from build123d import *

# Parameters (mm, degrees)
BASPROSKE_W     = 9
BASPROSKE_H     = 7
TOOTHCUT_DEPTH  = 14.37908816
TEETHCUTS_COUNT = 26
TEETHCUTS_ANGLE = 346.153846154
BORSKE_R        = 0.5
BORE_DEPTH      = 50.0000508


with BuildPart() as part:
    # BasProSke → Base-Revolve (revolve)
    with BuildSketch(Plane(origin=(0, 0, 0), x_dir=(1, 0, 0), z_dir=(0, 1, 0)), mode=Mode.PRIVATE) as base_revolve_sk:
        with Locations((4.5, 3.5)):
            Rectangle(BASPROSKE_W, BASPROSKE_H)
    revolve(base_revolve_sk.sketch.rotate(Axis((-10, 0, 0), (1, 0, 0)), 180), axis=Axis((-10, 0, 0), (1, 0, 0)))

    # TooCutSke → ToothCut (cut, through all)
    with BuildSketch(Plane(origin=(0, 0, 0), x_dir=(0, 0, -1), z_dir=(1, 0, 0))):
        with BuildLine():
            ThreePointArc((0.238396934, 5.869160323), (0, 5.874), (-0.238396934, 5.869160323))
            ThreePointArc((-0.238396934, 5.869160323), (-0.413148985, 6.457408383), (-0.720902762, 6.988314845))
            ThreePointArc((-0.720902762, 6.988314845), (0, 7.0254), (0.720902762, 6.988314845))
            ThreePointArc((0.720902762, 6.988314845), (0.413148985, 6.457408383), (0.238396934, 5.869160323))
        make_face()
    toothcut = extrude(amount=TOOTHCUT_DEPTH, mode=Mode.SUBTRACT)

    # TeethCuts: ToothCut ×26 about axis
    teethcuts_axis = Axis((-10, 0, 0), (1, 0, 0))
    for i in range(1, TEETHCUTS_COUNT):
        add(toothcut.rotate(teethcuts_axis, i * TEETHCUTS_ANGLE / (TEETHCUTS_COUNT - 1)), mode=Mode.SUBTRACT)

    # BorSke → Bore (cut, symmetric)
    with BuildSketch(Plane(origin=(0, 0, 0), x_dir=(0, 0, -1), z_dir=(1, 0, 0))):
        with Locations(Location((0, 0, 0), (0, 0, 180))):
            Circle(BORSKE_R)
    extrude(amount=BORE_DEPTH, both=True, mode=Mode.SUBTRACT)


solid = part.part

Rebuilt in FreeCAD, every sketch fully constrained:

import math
import FreeCAD as App
import Part
import Sketcher
from FreeCAD import Vector


def add_polygon(sketch, points):
    """Adds a closed chain of lines whose ends are joined by coincident constraints."""
    first, n = sketch.GeometryCount, len(points)
    for a, b in zip(points, points[1:] + points[:1]):
        sketch.addGeometry(Part.LineSegment(App.Vector(*a, 0), App.Vector(*b, 0)), False)
    for i in range(n):
        sketch.addConstraint(Sketcher.Constraint("Coincident", first + i, 2, first + (i + 1) % n, 1))

doc = App.newDocument("Part")
body = doc.addObject("PartDesign::Body", "Body")

# Sketch on XZ plane
sketch1 = doc.addObject("Sketcher::SketchObject", "Sketch")
body.addObject(sketch1)
sketch1.AttachmentSupport = (doc.XZ_Plane, [""])
sketch1.MapMode = "FlatFace"
add_polygon(sketch1, [(0, -7), (0, 0), (9, 0), (9, -7)])  # lines 0-3
sketch1.addConstraint([
    Sketcher.Constraint("Vertical", 0),
    Sketcher.Constraint("Horizontal", 1),
    Sketcher.Constraint("Vertical", 2),
    Sketcher.Constraint("Horizontal", 3),
    Sketcher.Constraint("Coincident", 0, 2, -1, 1),
    Sketcher.Constraint("DistanceX", 1, 1, 1, 2, 9.0),
    Sketcher.Constraint("DistanceY", 0, 1, 0, 2, 7.0),
])
revolution = doc.addObject("PartDesign::Revolution", "Revolution")
body.addObject(revolution)
revolution.Profile = sketch1
revolution.ReferenceAxis = (sketch1, ["H_Axis"])
revolution.Angle = 360

# Sketch on YZ plane
sketch2 = doc.addObject("Sketcher::SketchObject", "Sketch001")
body.addObject(sketch2)
sketch2.AttachmentSupport = (doc.YZ_Plane, [""])
sketch2.MapMode = "FlatFace"
sketch2.addGeometry([
    Part.ArcOfCircle(Part.Circle(Vector(0, 0, 0), Vector(0, 0, 1), 5.874), math.radians(-2.325995), math.radians(2.325995)),
    Part.ArcOfCircle(Part.Circle(Vector(5.428051, -2.800705, 0), Vector(0, 0, 1), 2.6), math.radians(53.122841), math.radians(80.232103)),
    Part.ArcOfCircle(Part.Circle(Vector(0, 0, 0), Vector(0, 0, 1), 7.0254), math.radians(-5.889703), math.radians(5.889703)),
    Part.ArcOfCircle(Part.Circle(Vector(5.428051, 2.800705, 0), Vector(0, 0, 1), 2.6), math.radians(-80.232103), math.radians(-53.122841)),
], False)
sketch2.addConstraint([
    Sketcher.Constraint("Coincident", 0, 1, 1, 2),
    Sketcher.Constraint("Coincident", 1, 1, 2, 1),
    Sketcher.Constraint("Coincident", 2, 2, 3, 2),
    Sketcher.Constraint("Coincident", 3, 1, 0, 2),
    Sketcher.Constraint("Coincident", 0, 3, -1, 1),
    Sketcher.Constraint("Coincident", 2, 3, -1, 1),
    Sketcher.Constraint("Equal", 1, 3),
    Sketcher.Constraint("Symmetric", 1, 3, 3, 3, -1),
    Sketcher.Constraint("Radius", 1, 2.6),
    Sketcher.Constraint("Radius", 0, 5.874),
    Sketcher.Constraint("Radius", 2, 7.0254),
    Sketcher.Constraint("DistanceY", 0, 1, 3, 3, 3.039102),
    Sketcher.Constraint("DistanceY", 0, 1, 2, 2, 0.9593),
])
pocket1 = doc.addObject("PartDesign::Pocket", "Pocket")
body.addObject(pocket1)
pocket1.Profile = sketch2
pocket1.Type = "ThroughAll"
pocket1.Reversed = True
doc.recompute()

polarpattern = doc.addObject("PartDesign::PolarPattern", "PolarPattern")
body.addObject(polarpattern)
polarpattern.Originals = [pocket1]
polarpattern.Axis = (doc.X_Axis, [""])
polarpattern.Angle = 360
polarpattern.Occurrences = 26
body.Tip = polarpattern

# Sketch on YZ plane
sketch3 = doc.addObject("Sketcher::SketchObject", "Sketch002")
body.addObject(sketch3)
sketch3.AttachmentSupport = (doc.YZ_Plane, [""])
sketch3.MapMode = "FlatFace"
sketch3.addGeometry(Part.Circle(Vector(0, 0, 0), Vector(0, 0, 1), 0.5), False)
sketch3.addConstraint([
    Sketcher.Constraint("Coincident", 0, 3, -1, 1),
    Sketcher.Constraint("Diameter", 0, 1.0),
])
pocket2 = doc.addObject("PartDesign::Pocket", "Pocket001")
body.addObject(pocket2)
pocket2.Profile = sketch3
pocket2.Length = 100.000102
pocket2.Midplane = True

doc.recompute()
